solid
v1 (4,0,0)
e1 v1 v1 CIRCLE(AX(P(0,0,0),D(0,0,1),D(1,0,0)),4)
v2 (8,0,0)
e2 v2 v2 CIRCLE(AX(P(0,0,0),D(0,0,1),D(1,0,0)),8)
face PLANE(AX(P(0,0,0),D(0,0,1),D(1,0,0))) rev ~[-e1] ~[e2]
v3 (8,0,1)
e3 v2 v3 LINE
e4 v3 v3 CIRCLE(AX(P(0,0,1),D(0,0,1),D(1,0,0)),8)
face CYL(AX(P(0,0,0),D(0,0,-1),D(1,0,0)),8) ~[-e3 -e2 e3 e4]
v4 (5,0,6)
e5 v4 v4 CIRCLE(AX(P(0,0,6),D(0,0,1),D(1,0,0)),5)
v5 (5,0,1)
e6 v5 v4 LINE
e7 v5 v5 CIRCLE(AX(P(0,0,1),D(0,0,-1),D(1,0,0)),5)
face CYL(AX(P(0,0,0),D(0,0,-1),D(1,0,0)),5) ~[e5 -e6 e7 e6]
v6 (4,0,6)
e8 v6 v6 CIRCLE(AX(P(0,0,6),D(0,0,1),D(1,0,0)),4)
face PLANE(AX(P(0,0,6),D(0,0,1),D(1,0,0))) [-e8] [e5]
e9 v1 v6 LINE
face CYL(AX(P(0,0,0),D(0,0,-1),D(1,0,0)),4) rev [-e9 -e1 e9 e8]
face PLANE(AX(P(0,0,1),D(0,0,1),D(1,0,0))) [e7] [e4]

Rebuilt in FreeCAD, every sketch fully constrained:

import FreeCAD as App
import Part
import Sketcher
from FreeCAD import Vector

doc = App.newDocument("Part")
body = doc.addObject("PartDesign::Body", "Body")

# Sketch on XY plane
sketch1 = doc.addObject("Sketcher::SketchObject", "Sketch")
body.addObject(sketch1)
sketch1.AttachmentSupport = (doc.XY_Plane, [""])
sketch1.MapMode = "FlatFace"
sketch1.addGeometry([
    Part.Circle(Vector(0, 0, 0), Vector(0, 0, 1), 8),
    Part.Circle(Vector(0, 0, 0), Vector(0, 0, 1), 4),
], False)
sketch1.addConstraint([
    Sketcher.Constraint("Coincident", 0, 3, -1, 1),
    Sketcher.Constraint("Coincident", 1, 3, -1, 1),
    Sketcher.Constraint("Diameter", 0, 16.0),
    Sketcher.Constraint("Diameter", 1, 8.0),
])
pad1 = doc.addObject("PartDesign::Pad", "Pad")
body.addObject(pad1)
pad1.Profile = sketch1
pad1.Length = 1

# Sketch on XY plane
sketch2 = doc.addObject("Sketcher::SketchObject", "Sketch001")
body.addObject(sketch2)
sketch2.AttachmentSupport = (doc.XY_Plane, [""])
sketch2.MapMode = "FlatFace"
sketch2.addGeometry([
    Part.Circle(Vector(0, 0, 0), Vector(0, 0, 1), 5),
    Part.Circle(Vector(0, 0, 0), Vector(0, 0, 1), 4),
], False)
sketch2.addConstraint([
    Sketcher.Constraint("Coincident", 0, 3, -1, 1),
    Sketcher.Constraint("Coincident", 1, 3, -1, 1),
    Sketcher.Constraint("Diameter", 0, 10.0),
    Sketcher.Constraint("Diameter", 1, 8.0),
])
pad2 = doc.addObject("PartDesign::Pad", "Pad001")
body.addObject(pad2)
pad2.Profile = sketch2
pad2.Length = 6

doc.recompute()
